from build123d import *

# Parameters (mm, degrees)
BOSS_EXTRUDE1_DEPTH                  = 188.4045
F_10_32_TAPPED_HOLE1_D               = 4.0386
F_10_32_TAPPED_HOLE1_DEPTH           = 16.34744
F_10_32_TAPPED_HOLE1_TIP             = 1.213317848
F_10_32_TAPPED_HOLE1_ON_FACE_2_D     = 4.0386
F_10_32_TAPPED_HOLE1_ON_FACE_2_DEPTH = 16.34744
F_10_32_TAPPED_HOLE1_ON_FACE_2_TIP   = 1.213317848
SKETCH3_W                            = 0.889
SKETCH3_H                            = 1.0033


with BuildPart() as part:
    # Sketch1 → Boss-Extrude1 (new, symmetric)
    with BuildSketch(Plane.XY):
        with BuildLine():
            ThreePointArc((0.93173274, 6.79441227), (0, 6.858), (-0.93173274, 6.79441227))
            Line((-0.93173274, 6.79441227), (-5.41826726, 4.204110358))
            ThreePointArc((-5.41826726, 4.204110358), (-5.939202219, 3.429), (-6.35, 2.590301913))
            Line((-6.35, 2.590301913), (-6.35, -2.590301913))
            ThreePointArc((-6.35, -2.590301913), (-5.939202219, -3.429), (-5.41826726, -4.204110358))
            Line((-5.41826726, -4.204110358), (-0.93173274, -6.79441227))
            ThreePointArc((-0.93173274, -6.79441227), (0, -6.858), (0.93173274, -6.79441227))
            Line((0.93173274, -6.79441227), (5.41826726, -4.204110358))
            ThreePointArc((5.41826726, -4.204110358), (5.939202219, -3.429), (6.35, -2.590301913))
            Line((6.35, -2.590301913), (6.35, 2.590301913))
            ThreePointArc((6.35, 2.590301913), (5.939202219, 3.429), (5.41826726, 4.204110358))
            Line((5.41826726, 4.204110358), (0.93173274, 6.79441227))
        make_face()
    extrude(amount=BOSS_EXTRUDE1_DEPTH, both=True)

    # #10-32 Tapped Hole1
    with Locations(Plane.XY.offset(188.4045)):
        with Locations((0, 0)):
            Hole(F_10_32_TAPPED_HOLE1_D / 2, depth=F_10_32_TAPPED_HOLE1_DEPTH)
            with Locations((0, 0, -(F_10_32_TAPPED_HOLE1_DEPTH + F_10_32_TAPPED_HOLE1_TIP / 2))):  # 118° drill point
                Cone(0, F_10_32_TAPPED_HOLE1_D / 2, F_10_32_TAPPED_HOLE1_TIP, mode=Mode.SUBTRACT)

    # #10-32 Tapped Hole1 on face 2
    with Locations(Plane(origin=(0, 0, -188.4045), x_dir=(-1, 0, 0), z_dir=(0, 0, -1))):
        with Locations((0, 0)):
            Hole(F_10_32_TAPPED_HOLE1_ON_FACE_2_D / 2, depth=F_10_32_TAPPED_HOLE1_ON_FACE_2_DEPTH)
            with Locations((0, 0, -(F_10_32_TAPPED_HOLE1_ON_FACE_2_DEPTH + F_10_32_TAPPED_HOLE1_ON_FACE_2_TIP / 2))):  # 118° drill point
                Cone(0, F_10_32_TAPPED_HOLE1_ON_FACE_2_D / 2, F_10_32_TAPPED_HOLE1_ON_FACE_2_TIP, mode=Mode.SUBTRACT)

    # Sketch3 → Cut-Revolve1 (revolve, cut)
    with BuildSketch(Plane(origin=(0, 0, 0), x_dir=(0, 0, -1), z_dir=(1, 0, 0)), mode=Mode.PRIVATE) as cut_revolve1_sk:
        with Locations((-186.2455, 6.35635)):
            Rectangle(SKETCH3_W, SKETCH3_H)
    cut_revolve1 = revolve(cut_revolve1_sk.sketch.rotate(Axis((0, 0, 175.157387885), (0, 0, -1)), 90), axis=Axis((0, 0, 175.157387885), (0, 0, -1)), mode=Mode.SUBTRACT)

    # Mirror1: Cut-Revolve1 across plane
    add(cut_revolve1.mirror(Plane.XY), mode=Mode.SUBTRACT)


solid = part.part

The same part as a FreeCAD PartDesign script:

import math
import FreeCAD as App
import Part
import Sketcher
from FreeCAD import Vector
Q = App.Units.Quantity

doc = App.newDocument("Part")
body = doc.addObject("PartDesign::Body", "Body")

# Sketch on XY plane
sketch1 = doc.addObject("Sketcher::SketchObject", "Sketch")
body.addObject(sketch1)
sketch1.AttachmentSupport = (doc.XY_Plane, [""])
sketch1.MapMode = "FlatFace"
sketch1.addGeometry(Part.ArcOfCircle(Part.Circle(Vector(0, 0, 0), Vector(0, 0, 1), 6.858), math.radians(82.191607), math.radians(97.808393)), False)
sketch1.addGeometry(Part.LineSegment(Vector(-0.931733, 6.794412, 0), Vector(-5.418267, 4.20411, 0)), False)
sketch1.addGeometry(Part.ArcOfCircle(Part.Circle(Vector(0, 0, 0), Vector(0, 0, 1), 6.858), math.radians(142.191607), math.radians(157.808393)), False)
sketch1.addGeometry(Part.LineSegment(Vector(-6.35, 2.590302, 0), Vector(-6.35, -2.590302, 0)), False)
sketch1.addGeometry(Part.ArcOfCircle(Part.Circle(Vector(0, 0, 0), Vector(0, 0, 1), 6.858), math.radians(-157.808393), math.radians(-142.191607)), False)
sketch1.addGeometry(Part.LineSegment(Vector(-5.418267, -4.20411, 0), Vector(-0.931733, -6.794412, 0)), False)
sketch1.addGeometry(Part.ArcOfCircle(Part.Circle(Vector(0, 0, 0), Vector(0, 0, 1), 6.858), math.radians(-97.808393), math.radians(-82.191607)), False)
sketch1.addGeometry(Part.LineSegment(Vector(0.931733, -6.794412, 0), Vector(5.418267, -4.20411, 0)), False)
sketch1.addGeometry(Part.ArcOfCircle(Part.Circle(Vector(0, 0, 0), Vector(0, 0, 1), 6.858), math.radians(-37.808393), math.radians(-22.191607)), False)
sketch1.addGeometry(Part.LineSegment(Vector(6.35, -2.590302, 0), Vector(6.35, 2.590302, 0)), False)
sketch1.addGeometry(Part.ArcOfCircle(Part.Circle(Vector(0, 0, 0), Vector(0, 0, 1), 6.858), math.radians(22.191607), math.radians(37.808393)), False)
sketch1.addGeometry(Part.LineSegment(Vector(5.418267, 4.20411, 0), Vector(0.931733, 6.794412, 0)), False)
sketch1.addConstraint(Sketcher.Constraint("Coincident", 0, 2, 1, 1))
sketch1.addConstraint(Sketcher.Constraint("Coincident", 1, 2, 2, 1))
sketch1.addConstraint(Sketcher.Constraint("Coincident", 2, 2, 3, 1))
sketch1.addConstraint(Sketcher.Constraint("Coincident", 3, 2, 4, 1))
sketch1.addConstraint(Sketcher.Constraint("Coincident", 4, 2, 5, 1))
sketch1.addConstraint(Sketcher.Constraint("Coincident", 5, 2, 6, 1))
sketch1.addConstraint(Sketcher.Constraint("Coincident", 6, 2, 7, 1))
sketch1.addConstraint(Sketcher.Constraint("Coincident", 7, 2, 8, 1))
sketch1.addConstraint(Sketcher.Constraint("Coincident", 8, 2, 9, 1))
sketch1.addConstraint(Sketcher.Constraint("Coincident", 9, 2, 10, 1))
sketch1.addConstraint(Sketcher.Constraint("Coincident", 10, 2, 11, 1))
sketch1.addConstraint(Sketcher.Constraint("Coincident", 11, 2, 0, 1))
sketch1.addConstraint(Sketcher.Constraint("Vertical", 3))
sketch1.addConstraint(Sketcher.Constraint("Vertical", 9))
sketch1.addConstraint(Sketcher.Constraint("Coincident", 0, 3, -1, 1))
sketch1.addConstraint(Sketcher.Constraint("Coincident", 2, 3, -1, 1))
sketch1.addConstraint(Sketcher.Constraint("Coincident", 4, 3, -1, 1))
sketch1.addConstraint(Sketcher.Constraint("Coincident", 6, 3, -1, 1))
sketch1.addConstraint(Sketcher.Constraint("Coincident", 8, 3, -1, 1))
sketch1.addConstraint(Sketcher.Constraint("Coincident", 10, 3, -1, 1))
sketch1.addConstraint(Sketcher.Constraint("Equal", 0, 2))
sketch1.addConstraint(Sketcher.Constraint("Equal", 2, 4))
sketch1.addConstraint(Sketcher.Constraint("Equal", 4, 6))
sketch1.addConstraint(Sketcher.Constraint("Equal", 6, 8))
sketch1.addConstraint(Sketcher.Constraint("Equal", 8, 10))
sketch1.addConstraint(Sketcher.Constraint("Parallel", 1, 7))
sketch1.addConstraint(Sketcher.Constraint("Parallel", 5, 11))
sketch1.addConstraint(Sketcher.Constraint("Horizontal", 5, 2, 6, 2))
sketch1.addConstraint(Sketcher.Constraint("Horizontal", 4, 2, 7, 2))
sketch1.addConstraint(Sketcher.Constraint("Horizontal", 3, 2, 8, 2))
sketch1.addConstraint(Sketcher.Constraint("Horizontal", 1, 2, 10, 2))
sketch1.addConstraint(Sketcher.Constraint("Vertical", 1, 2, 4, 2))
sketch1.addConstraint(Sketcher.Constraint("Radius", 0, Q("0.27 in")))
sketch1.addConstraint(Sketcher.Constraint("Angle", 1, Q("-150 deg")))
sketch1.addConstraint(Sketcher.Constraint("DistanceX", 2, 2, -1, 1, Q("0.25 in")))
sketch1.addConstraint(Sketcher.Constraint("DistanceX", 4, 2, 6, 2, Q("0.25 in")))
pad1 = doc.addObject("PartDesign::Pad", "Pad")
body.addObject(pad1)
pad1.Profile = sketch1
pad1.Length = Q("14.835 in")
pad1.Midplane = True

# Sketch on XY plane
sketch2 = doc.addObject("Sketcher::SketchObject", "Sketch001")
body.addObject(sketch2)
sketch2.AttachmentSupport = (doc.XY_Plane, [""])
sketch2.MapMode = "FlatFace"
sketch2.AttachmentOffset = App.Placement(Vector(0, 0, 7.4175 * 25.4), App.Rotation())
sketch2.addGeometry(Part.Circle(Vector(0, 0, 0), Vector(0, 0, 1), 2.0193), False)
sketch2.addConstraint(Sketcher.Constraint("Coincident", 0, 3, -1, 1))
sketch2.addConstraint(Sketcher.Constraint("Diameter", 0, Q("0.159 in")))
doc.recompute()
hole = doc.addObject("PartDesign::Hole", "Hole")
body.addObject(hole)
hole.Profile = sketch2
hole.ThreadType = "None"
hole.Diameter = Q("0.159 in")
hole.DepthType = "Dimension"
hole.Depth = Q("0.6436 in")
hole.DrillPoint = "Angled"
hole.DrillPointAngle = 118

# Sketch on XY plane
sketch3 = doc.addObject("Sketcher::SketchObject", "Sketch002")
body.addObject(sketch3)
sketch3.AttachmentSupport = (doc.XY_Plane, [""])
sketch3.MapMode = "FlatFace"
sketch3.AttachmentOffset = App.Placement(Vector(0, 0, -7.4175 * 25.4), App.Rotation())
sketch3.addGeometry(Part.Circle(Vector(0, 0, 0), Vector(0, 0, 1), 2.0193), False)
sketch3.addConstraint(Sketcher.Constraint("Coincident", 0, 3, -1, 1))
sketch3.addConstraint(Sketcher.Constraint("Diameter", 0, Q("0.159 in")))
doc.recompute()
hole2 = doc.addObject("PartDesign::Hole", "Hole001")
body.addObject(hole2)
hole2.Profile = sketch3
hole2.ThreadType = "None"
hole2.Diameter = Q("0.159 in")
hole2.DepthType = "Dimension"
hole2.Depth = Q("0.6436 in")
hole2.DrillPoint = "Angled"
hole2.DrillPointAngle = 118
hole2.Reversed = True

# Sketch on YZ plane
sketch4 = doc.addObject("Sketcher::SketchObject", "Sketch003")
body.addObject(sketch4)
sketch4.AttachmentSupport = (doc.YZ_Plane, [""])
sketch4.MapMode = "FlatFace"
sketch4.addGeometry(Part.LineSegment(Vector(6.858, 186.69, 0), Vector(5.8547, 186.69, 0)), False)
sketch4.addGeometry(Part.LineSegment(Vector(5.8547, 186.69, 0), Vector(5.8547, 185.801, 0)), False)
sketch4.addGeometry(Part.LineSegment(Vector(5.8547, 185.801, 0), Vector(6.858, 185.801, 0)), False)
sketch4.addGeometry(Part.LineSegment(Vector(6.858, 185.801, 0), Vector(6.858, 186.69, 0)), False)
sketch4.addConstraint(Sketcher.Constraint("Coincident", 0, 2, 1, 1))
sketch4.addConstraint(Sketcher.Constraint("Coincident", 1, 2, 2, 1))
sketch4.addConstraint(Sketcher.Constraint("Coincident", 2, 2, 3, 1))
sketch4.addConstraint(Sketcher.Constraint("Coincident", 3, 2, 0, 1))
sketch4.addConstraint(Sketcher.Constraint("Horizontal", 0))
sketch4.addConstraint(Sketcher.Constraint("Vertical", 1))
sketch4.addConstraint(Sketcher.Constraint("Horizontal", 2))
sketch4.addConstraint(Sketcher.Constraint("Vertical", 3))
sketch4.addConstraint(Sketcher.Constraint("DistanceY", 1, 2, 1, 1, Q("0.035 in")))
sketch4.addConstraint(Sketcher.Constraint("DistanceY", -1, 1, 0, 2, Q("7.35 in")))
sketch4.addConstraint(Sketcher.Constraint("DistanceX", -1, 1, 2, 2, Q("0.27 in")))
sketch4.addConstraint(Sketcher.Constraint("DistanceX", 0, 2, 0, 1, Q("0.0395 in")))
groove = doc.addObject("PartDesign::Groove", "Groove")
body.addObject(groove)
groove.Profile = sketch4
groove.ReferenceAxis = (sketch4, ["V_Axis"])
groove.Angle = 360
doc.recompute()

mirrored = doc.addObject("PartDesign::Mirrored", "Mirrored")
body.addObject(mirrored)
mirrored.Originals = [groove]
mirrored.MirrorPlane = (doc.XY_Plane, [""])
body.Tip = mirrored

doc.recompute()
